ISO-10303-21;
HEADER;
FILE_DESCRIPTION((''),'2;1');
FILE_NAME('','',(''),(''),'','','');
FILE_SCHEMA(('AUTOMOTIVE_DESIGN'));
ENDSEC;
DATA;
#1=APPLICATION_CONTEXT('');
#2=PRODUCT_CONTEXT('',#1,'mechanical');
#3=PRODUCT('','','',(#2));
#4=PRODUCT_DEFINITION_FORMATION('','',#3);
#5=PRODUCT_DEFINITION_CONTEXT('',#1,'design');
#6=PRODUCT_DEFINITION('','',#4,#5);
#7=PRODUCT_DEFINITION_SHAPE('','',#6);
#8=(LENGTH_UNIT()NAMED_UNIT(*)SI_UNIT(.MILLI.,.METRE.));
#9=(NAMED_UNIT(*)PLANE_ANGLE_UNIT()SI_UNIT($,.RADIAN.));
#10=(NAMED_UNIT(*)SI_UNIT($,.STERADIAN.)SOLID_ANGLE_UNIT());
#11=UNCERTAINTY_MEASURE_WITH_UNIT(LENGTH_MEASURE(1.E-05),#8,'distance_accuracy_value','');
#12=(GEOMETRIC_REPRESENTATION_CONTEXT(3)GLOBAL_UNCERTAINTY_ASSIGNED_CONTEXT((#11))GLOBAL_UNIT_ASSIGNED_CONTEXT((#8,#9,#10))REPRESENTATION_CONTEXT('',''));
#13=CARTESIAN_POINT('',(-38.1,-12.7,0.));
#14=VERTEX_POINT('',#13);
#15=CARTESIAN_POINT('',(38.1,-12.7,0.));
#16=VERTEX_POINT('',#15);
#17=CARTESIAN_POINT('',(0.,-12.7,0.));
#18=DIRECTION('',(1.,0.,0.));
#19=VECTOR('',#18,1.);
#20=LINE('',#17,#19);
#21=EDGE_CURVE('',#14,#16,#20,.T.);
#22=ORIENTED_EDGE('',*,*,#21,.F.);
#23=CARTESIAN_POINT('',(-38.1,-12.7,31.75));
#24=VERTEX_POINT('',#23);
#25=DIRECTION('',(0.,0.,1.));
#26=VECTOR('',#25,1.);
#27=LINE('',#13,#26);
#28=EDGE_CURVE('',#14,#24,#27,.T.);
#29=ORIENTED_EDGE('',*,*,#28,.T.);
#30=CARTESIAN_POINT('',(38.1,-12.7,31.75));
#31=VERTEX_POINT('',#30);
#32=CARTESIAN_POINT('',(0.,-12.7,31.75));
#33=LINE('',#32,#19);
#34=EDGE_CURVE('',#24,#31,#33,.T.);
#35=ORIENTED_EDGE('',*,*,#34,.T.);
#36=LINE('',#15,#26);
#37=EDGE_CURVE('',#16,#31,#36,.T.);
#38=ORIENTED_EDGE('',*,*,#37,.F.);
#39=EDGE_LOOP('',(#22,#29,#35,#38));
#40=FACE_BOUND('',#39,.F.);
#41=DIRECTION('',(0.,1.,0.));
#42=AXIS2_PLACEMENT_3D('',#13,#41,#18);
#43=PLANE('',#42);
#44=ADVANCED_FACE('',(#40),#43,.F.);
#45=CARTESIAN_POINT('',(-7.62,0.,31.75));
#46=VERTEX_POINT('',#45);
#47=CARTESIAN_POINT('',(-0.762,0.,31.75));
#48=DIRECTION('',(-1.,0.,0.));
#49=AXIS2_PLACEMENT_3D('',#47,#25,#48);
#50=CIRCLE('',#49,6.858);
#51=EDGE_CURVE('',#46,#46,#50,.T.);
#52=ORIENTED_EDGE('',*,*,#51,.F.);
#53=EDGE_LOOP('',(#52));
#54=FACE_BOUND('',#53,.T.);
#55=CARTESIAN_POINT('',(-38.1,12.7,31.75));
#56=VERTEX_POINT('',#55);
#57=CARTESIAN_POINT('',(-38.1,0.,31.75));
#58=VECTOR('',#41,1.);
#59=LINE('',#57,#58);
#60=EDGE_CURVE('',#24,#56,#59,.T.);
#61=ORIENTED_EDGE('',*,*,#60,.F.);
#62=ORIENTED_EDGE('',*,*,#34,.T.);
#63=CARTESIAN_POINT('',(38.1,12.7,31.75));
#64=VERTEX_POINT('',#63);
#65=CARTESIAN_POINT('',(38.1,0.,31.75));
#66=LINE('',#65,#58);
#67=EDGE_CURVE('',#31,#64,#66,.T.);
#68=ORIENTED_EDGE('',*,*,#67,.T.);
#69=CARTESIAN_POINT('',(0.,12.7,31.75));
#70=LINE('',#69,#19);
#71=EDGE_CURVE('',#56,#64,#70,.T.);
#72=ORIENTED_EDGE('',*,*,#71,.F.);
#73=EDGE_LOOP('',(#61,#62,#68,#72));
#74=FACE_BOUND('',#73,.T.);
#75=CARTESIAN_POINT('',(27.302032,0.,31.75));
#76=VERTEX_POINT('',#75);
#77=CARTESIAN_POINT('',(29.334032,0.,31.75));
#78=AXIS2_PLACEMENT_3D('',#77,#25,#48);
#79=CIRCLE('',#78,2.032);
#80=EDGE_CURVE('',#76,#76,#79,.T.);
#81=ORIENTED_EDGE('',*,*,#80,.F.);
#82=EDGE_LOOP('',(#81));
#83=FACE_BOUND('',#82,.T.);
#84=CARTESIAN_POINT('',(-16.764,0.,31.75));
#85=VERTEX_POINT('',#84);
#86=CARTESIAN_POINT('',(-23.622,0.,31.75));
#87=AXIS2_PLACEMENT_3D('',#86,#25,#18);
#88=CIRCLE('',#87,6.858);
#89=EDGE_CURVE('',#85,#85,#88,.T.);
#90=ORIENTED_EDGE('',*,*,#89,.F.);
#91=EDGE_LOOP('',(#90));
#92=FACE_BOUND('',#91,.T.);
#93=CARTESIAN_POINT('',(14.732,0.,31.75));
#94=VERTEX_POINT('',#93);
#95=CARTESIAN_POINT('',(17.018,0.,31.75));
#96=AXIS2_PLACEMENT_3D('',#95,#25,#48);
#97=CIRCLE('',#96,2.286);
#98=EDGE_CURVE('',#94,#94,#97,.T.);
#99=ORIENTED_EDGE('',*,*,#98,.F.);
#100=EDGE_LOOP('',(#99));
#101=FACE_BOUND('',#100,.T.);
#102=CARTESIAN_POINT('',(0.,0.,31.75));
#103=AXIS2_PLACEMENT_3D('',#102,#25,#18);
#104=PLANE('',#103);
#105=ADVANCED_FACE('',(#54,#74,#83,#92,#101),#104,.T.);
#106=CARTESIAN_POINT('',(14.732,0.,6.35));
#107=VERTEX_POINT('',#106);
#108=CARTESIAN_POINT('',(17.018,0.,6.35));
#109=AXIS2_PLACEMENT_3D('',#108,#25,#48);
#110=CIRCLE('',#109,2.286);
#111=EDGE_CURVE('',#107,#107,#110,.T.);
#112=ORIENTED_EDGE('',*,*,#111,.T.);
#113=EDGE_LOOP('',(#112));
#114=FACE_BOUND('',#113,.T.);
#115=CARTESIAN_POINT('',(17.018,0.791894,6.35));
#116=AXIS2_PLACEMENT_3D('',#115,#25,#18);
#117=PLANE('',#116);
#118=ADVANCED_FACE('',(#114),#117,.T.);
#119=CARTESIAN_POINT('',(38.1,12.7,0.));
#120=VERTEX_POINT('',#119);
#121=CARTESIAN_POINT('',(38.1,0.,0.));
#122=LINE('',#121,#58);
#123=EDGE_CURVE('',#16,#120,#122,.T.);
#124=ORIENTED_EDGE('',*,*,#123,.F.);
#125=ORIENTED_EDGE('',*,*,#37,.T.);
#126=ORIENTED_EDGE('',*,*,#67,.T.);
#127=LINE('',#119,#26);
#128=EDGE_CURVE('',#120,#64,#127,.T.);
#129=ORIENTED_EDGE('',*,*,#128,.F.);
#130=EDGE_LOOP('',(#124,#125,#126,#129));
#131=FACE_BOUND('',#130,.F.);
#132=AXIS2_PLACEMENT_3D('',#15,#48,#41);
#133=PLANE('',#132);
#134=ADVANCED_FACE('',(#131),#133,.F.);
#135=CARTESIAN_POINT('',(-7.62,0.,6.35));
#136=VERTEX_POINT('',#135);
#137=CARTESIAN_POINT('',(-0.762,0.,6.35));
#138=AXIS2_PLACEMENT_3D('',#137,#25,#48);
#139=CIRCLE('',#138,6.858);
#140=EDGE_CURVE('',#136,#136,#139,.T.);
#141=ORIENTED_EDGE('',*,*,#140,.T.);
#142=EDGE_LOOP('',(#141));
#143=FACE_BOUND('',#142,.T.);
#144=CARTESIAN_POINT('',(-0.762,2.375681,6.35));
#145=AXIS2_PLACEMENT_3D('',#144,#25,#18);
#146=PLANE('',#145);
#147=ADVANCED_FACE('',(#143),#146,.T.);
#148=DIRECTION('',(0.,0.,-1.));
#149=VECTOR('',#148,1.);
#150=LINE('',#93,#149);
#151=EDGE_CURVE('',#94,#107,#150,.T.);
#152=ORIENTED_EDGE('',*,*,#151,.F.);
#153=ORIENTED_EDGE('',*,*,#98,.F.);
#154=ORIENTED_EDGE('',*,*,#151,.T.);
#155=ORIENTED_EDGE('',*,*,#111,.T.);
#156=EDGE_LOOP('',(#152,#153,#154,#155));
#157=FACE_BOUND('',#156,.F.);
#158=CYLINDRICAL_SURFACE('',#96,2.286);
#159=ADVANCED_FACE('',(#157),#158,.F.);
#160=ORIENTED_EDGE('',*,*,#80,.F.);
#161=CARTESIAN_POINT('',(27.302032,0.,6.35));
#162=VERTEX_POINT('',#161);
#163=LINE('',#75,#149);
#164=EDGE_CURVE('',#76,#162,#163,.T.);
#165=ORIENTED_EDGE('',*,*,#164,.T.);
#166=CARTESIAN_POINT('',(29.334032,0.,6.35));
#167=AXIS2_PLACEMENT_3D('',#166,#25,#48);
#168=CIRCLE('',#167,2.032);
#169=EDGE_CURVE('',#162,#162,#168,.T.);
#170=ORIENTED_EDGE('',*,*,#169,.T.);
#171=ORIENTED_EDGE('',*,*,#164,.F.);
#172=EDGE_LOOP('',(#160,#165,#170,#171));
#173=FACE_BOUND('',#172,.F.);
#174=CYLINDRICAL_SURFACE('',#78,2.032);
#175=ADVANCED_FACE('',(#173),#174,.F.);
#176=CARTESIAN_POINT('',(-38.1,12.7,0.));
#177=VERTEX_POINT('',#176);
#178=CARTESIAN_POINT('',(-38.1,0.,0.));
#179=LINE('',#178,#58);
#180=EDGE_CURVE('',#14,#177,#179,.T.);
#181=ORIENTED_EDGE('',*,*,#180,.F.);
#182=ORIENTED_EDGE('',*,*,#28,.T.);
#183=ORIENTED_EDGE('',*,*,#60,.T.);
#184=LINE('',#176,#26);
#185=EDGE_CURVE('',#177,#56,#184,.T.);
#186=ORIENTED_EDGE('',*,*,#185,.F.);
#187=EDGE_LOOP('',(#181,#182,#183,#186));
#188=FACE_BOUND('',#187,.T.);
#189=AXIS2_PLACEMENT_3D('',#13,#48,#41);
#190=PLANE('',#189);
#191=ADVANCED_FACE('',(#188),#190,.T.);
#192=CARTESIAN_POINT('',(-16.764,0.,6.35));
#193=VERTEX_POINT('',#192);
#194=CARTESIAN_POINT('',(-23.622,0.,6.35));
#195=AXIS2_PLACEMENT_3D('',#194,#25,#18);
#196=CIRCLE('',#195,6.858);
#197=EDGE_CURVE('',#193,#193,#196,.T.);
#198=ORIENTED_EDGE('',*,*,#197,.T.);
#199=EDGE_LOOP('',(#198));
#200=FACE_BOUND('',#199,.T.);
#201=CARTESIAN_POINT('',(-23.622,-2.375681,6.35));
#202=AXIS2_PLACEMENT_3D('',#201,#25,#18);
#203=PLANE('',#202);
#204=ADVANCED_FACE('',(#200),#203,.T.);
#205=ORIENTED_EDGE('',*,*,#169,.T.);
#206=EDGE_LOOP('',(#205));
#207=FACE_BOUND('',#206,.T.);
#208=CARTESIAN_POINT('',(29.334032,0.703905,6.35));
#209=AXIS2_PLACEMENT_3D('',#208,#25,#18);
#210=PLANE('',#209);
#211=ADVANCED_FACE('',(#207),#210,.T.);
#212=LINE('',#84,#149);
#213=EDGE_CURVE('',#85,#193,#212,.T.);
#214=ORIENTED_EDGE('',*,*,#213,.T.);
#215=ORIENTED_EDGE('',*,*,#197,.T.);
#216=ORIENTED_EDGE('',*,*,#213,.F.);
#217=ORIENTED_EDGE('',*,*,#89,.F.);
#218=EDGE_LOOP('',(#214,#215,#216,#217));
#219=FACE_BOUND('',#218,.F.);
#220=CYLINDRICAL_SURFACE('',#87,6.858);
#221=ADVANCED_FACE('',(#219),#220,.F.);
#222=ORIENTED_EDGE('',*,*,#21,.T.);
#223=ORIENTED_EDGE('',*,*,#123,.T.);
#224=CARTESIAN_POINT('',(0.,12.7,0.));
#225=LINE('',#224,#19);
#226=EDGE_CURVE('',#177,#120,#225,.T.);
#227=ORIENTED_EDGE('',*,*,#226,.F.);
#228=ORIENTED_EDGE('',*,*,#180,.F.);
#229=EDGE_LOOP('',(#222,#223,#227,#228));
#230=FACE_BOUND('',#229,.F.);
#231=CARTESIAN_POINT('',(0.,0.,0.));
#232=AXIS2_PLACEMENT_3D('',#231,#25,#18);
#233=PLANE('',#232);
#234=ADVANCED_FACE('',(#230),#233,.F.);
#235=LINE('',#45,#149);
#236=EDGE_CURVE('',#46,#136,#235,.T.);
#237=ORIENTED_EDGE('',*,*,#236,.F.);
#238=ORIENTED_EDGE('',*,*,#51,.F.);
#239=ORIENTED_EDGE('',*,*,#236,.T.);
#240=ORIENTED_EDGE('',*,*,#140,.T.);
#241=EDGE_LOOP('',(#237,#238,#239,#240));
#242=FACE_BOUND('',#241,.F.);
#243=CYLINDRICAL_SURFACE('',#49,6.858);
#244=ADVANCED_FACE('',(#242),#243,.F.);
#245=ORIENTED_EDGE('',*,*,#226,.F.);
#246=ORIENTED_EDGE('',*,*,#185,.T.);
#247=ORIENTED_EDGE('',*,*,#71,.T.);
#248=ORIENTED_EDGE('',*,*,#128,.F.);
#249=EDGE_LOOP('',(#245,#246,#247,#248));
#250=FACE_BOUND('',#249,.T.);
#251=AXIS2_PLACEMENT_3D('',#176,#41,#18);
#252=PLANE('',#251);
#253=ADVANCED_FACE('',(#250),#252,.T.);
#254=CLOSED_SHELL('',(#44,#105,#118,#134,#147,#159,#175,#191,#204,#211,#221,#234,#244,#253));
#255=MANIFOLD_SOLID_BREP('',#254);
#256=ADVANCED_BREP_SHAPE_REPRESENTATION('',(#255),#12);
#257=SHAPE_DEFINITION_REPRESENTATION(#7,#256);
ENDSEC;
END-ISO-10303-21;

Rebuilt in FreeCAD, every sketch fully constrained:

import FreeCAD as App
import Part
import Sketcher

V = App.Vector
Q = App.Units.Quantity

doc = App.newDocument("Part")
body = doc.addObject("PartDesign::Body", "Body")

sketch1 = doc.addObject("Sketcher::SketchObject", "Sketch")
body.addObject(sketch1)
sketch1.AttachmentSupport = (doc.XY_Plane, [""])
sketch1.MapMode = "FlatFace"
sketch1.addGeometry(Part.LineSegment(V(-38, 13, 0), V(-38, -13, 0)), False)
sketch1.addGeometry(Part.LineSegment(V(-38, -13, 0), V(38, -13, 0)), False)
sketch1.addGeometry(Part.LineSegment(V(38, -13, 0), V(38, 13, 0)), False)
sketch1.addGeometry(Part.LineSegment(V(38, 13, 0), V(-38, 13, 0)), False)
sketch1.addConstraint(Sketcher.Constraint("Coincident", 0, 2, 1, 1))
sketch1.addConstraint(Sketcher.Constraint("Coincident", 1, 2, 2, 1))
sketch1.addConstraint(Sketcher.Constraint("Coincident", 2, 2, 3, 1))
sketch1.addConstraint(Sketcher.Constraint("Coincident", 3, 2, 0, 1))
sketch1.addConstraint(Sketcher.Constraint("Vertical", 0))
sketch1.addConstraint(Sketcher.Constraint("Horizontal", 1))
sketch1.addConstraint(Sketcher.Constraint("Vertical", 2))
sketch1.addConstraint(Sketcher.Constraint("Horizontal", 3))
sketch1.addConstraint(Sketcher.Constraint("Symmetric", 0, 2, 2, 2, -1, 1))
sketch1.addConstraint(Sketcher.Constraint("DistanceX", 1, 1, 1, 2, Q("3 in")))
sketch1.addConstraint(Sketcher.Constraint("DistanceY", 0, 2, 0, 1, Q("1 in")))
pad1 = doc.addObject("PartDesign::Pad", "Pad")
body.addObject(pad1)
pad1.Profile = sketch1
pad1.Length = Q("1.25 in")

sketch2 = doc.addObject("Sketcher::SketchObject", "Sketch001")
body.addObject(sketch2)
sketch2.AttachmentSupport = (doc.XY_Plane, [""])
sketch2.MapMode = "FlatFace"
sketch2.AttachmentOffset = App.Placement(V(0, 0, 1.25 * 25.4), App.Rotation())
sketch2.addGeometry(Part.Circle(V(-0.8, 0, 0), V(0, 0, 1), 6.9), False)
sketch2.addGeometry(Part.Circle(V(29.3, 0, 0), V(0, 0, 1), 2), False)
sketch2.addGeometry(Part.Circle(V(17, 0, 0), V(0, 0, 1), 2.3), False)
sketch2.addGeometry(Part.Circle(V(-23.6, 0, 0), V(0, 0, 1), 6.9), False)
sketch2.addConstraint(Sketcher.Constraint("Equal", 0, 3))
sketch2.addConstraint(Sketcher.Constraint("PointOnObject", 0, 3, -1))
sketch2.addConstraint(Sketcher.Constraint("PointOnObject", 1, 3, -1))
sketch2.addConstraint(Sketcher.Constraint("PointOnObject", 2, 3, -1))
sketch2.addConstraint(Sketcher.Constraint("PointOnObject", 3, 3, -1))
sketch2.addConstraint(Sketcher.Constraint("Diameter", 0, Q("0.54 in")))
sketch2.addConstraint(Sketcher.Constraint("Diameter", 1, Q("0.16 in")))
sketch2.addConstraint(Sketcher.Constraint("Diameter", 2, Q("0.18 in")))
sketch2.addConstraint(Sketcher.Constraint("DistanceX", 0, 3, 2, 3, Q("0.7 in")))
sketch2.addConstraint(Sketcher.Constraint("DistanceX", 3, 3, 0, 3, Q("0.9 in")))
sketch2.addConstraint(Sketcher.Constraint("DistanceX", 0, 3, -1, 1, Q("0.03 in")))
sketch2.addConstraint(Sketcher.Constraint("DistanceX", -1, 1, 1, 3, Q("29.334032 mm")))
pocket1 = doc.addObject("PartDesign::Pocket", "Pocket")
body.addObject(pocket1)
pocket1.Profile = sketch2
pocket1.Length = Q("1 in")

doc.recompute()
